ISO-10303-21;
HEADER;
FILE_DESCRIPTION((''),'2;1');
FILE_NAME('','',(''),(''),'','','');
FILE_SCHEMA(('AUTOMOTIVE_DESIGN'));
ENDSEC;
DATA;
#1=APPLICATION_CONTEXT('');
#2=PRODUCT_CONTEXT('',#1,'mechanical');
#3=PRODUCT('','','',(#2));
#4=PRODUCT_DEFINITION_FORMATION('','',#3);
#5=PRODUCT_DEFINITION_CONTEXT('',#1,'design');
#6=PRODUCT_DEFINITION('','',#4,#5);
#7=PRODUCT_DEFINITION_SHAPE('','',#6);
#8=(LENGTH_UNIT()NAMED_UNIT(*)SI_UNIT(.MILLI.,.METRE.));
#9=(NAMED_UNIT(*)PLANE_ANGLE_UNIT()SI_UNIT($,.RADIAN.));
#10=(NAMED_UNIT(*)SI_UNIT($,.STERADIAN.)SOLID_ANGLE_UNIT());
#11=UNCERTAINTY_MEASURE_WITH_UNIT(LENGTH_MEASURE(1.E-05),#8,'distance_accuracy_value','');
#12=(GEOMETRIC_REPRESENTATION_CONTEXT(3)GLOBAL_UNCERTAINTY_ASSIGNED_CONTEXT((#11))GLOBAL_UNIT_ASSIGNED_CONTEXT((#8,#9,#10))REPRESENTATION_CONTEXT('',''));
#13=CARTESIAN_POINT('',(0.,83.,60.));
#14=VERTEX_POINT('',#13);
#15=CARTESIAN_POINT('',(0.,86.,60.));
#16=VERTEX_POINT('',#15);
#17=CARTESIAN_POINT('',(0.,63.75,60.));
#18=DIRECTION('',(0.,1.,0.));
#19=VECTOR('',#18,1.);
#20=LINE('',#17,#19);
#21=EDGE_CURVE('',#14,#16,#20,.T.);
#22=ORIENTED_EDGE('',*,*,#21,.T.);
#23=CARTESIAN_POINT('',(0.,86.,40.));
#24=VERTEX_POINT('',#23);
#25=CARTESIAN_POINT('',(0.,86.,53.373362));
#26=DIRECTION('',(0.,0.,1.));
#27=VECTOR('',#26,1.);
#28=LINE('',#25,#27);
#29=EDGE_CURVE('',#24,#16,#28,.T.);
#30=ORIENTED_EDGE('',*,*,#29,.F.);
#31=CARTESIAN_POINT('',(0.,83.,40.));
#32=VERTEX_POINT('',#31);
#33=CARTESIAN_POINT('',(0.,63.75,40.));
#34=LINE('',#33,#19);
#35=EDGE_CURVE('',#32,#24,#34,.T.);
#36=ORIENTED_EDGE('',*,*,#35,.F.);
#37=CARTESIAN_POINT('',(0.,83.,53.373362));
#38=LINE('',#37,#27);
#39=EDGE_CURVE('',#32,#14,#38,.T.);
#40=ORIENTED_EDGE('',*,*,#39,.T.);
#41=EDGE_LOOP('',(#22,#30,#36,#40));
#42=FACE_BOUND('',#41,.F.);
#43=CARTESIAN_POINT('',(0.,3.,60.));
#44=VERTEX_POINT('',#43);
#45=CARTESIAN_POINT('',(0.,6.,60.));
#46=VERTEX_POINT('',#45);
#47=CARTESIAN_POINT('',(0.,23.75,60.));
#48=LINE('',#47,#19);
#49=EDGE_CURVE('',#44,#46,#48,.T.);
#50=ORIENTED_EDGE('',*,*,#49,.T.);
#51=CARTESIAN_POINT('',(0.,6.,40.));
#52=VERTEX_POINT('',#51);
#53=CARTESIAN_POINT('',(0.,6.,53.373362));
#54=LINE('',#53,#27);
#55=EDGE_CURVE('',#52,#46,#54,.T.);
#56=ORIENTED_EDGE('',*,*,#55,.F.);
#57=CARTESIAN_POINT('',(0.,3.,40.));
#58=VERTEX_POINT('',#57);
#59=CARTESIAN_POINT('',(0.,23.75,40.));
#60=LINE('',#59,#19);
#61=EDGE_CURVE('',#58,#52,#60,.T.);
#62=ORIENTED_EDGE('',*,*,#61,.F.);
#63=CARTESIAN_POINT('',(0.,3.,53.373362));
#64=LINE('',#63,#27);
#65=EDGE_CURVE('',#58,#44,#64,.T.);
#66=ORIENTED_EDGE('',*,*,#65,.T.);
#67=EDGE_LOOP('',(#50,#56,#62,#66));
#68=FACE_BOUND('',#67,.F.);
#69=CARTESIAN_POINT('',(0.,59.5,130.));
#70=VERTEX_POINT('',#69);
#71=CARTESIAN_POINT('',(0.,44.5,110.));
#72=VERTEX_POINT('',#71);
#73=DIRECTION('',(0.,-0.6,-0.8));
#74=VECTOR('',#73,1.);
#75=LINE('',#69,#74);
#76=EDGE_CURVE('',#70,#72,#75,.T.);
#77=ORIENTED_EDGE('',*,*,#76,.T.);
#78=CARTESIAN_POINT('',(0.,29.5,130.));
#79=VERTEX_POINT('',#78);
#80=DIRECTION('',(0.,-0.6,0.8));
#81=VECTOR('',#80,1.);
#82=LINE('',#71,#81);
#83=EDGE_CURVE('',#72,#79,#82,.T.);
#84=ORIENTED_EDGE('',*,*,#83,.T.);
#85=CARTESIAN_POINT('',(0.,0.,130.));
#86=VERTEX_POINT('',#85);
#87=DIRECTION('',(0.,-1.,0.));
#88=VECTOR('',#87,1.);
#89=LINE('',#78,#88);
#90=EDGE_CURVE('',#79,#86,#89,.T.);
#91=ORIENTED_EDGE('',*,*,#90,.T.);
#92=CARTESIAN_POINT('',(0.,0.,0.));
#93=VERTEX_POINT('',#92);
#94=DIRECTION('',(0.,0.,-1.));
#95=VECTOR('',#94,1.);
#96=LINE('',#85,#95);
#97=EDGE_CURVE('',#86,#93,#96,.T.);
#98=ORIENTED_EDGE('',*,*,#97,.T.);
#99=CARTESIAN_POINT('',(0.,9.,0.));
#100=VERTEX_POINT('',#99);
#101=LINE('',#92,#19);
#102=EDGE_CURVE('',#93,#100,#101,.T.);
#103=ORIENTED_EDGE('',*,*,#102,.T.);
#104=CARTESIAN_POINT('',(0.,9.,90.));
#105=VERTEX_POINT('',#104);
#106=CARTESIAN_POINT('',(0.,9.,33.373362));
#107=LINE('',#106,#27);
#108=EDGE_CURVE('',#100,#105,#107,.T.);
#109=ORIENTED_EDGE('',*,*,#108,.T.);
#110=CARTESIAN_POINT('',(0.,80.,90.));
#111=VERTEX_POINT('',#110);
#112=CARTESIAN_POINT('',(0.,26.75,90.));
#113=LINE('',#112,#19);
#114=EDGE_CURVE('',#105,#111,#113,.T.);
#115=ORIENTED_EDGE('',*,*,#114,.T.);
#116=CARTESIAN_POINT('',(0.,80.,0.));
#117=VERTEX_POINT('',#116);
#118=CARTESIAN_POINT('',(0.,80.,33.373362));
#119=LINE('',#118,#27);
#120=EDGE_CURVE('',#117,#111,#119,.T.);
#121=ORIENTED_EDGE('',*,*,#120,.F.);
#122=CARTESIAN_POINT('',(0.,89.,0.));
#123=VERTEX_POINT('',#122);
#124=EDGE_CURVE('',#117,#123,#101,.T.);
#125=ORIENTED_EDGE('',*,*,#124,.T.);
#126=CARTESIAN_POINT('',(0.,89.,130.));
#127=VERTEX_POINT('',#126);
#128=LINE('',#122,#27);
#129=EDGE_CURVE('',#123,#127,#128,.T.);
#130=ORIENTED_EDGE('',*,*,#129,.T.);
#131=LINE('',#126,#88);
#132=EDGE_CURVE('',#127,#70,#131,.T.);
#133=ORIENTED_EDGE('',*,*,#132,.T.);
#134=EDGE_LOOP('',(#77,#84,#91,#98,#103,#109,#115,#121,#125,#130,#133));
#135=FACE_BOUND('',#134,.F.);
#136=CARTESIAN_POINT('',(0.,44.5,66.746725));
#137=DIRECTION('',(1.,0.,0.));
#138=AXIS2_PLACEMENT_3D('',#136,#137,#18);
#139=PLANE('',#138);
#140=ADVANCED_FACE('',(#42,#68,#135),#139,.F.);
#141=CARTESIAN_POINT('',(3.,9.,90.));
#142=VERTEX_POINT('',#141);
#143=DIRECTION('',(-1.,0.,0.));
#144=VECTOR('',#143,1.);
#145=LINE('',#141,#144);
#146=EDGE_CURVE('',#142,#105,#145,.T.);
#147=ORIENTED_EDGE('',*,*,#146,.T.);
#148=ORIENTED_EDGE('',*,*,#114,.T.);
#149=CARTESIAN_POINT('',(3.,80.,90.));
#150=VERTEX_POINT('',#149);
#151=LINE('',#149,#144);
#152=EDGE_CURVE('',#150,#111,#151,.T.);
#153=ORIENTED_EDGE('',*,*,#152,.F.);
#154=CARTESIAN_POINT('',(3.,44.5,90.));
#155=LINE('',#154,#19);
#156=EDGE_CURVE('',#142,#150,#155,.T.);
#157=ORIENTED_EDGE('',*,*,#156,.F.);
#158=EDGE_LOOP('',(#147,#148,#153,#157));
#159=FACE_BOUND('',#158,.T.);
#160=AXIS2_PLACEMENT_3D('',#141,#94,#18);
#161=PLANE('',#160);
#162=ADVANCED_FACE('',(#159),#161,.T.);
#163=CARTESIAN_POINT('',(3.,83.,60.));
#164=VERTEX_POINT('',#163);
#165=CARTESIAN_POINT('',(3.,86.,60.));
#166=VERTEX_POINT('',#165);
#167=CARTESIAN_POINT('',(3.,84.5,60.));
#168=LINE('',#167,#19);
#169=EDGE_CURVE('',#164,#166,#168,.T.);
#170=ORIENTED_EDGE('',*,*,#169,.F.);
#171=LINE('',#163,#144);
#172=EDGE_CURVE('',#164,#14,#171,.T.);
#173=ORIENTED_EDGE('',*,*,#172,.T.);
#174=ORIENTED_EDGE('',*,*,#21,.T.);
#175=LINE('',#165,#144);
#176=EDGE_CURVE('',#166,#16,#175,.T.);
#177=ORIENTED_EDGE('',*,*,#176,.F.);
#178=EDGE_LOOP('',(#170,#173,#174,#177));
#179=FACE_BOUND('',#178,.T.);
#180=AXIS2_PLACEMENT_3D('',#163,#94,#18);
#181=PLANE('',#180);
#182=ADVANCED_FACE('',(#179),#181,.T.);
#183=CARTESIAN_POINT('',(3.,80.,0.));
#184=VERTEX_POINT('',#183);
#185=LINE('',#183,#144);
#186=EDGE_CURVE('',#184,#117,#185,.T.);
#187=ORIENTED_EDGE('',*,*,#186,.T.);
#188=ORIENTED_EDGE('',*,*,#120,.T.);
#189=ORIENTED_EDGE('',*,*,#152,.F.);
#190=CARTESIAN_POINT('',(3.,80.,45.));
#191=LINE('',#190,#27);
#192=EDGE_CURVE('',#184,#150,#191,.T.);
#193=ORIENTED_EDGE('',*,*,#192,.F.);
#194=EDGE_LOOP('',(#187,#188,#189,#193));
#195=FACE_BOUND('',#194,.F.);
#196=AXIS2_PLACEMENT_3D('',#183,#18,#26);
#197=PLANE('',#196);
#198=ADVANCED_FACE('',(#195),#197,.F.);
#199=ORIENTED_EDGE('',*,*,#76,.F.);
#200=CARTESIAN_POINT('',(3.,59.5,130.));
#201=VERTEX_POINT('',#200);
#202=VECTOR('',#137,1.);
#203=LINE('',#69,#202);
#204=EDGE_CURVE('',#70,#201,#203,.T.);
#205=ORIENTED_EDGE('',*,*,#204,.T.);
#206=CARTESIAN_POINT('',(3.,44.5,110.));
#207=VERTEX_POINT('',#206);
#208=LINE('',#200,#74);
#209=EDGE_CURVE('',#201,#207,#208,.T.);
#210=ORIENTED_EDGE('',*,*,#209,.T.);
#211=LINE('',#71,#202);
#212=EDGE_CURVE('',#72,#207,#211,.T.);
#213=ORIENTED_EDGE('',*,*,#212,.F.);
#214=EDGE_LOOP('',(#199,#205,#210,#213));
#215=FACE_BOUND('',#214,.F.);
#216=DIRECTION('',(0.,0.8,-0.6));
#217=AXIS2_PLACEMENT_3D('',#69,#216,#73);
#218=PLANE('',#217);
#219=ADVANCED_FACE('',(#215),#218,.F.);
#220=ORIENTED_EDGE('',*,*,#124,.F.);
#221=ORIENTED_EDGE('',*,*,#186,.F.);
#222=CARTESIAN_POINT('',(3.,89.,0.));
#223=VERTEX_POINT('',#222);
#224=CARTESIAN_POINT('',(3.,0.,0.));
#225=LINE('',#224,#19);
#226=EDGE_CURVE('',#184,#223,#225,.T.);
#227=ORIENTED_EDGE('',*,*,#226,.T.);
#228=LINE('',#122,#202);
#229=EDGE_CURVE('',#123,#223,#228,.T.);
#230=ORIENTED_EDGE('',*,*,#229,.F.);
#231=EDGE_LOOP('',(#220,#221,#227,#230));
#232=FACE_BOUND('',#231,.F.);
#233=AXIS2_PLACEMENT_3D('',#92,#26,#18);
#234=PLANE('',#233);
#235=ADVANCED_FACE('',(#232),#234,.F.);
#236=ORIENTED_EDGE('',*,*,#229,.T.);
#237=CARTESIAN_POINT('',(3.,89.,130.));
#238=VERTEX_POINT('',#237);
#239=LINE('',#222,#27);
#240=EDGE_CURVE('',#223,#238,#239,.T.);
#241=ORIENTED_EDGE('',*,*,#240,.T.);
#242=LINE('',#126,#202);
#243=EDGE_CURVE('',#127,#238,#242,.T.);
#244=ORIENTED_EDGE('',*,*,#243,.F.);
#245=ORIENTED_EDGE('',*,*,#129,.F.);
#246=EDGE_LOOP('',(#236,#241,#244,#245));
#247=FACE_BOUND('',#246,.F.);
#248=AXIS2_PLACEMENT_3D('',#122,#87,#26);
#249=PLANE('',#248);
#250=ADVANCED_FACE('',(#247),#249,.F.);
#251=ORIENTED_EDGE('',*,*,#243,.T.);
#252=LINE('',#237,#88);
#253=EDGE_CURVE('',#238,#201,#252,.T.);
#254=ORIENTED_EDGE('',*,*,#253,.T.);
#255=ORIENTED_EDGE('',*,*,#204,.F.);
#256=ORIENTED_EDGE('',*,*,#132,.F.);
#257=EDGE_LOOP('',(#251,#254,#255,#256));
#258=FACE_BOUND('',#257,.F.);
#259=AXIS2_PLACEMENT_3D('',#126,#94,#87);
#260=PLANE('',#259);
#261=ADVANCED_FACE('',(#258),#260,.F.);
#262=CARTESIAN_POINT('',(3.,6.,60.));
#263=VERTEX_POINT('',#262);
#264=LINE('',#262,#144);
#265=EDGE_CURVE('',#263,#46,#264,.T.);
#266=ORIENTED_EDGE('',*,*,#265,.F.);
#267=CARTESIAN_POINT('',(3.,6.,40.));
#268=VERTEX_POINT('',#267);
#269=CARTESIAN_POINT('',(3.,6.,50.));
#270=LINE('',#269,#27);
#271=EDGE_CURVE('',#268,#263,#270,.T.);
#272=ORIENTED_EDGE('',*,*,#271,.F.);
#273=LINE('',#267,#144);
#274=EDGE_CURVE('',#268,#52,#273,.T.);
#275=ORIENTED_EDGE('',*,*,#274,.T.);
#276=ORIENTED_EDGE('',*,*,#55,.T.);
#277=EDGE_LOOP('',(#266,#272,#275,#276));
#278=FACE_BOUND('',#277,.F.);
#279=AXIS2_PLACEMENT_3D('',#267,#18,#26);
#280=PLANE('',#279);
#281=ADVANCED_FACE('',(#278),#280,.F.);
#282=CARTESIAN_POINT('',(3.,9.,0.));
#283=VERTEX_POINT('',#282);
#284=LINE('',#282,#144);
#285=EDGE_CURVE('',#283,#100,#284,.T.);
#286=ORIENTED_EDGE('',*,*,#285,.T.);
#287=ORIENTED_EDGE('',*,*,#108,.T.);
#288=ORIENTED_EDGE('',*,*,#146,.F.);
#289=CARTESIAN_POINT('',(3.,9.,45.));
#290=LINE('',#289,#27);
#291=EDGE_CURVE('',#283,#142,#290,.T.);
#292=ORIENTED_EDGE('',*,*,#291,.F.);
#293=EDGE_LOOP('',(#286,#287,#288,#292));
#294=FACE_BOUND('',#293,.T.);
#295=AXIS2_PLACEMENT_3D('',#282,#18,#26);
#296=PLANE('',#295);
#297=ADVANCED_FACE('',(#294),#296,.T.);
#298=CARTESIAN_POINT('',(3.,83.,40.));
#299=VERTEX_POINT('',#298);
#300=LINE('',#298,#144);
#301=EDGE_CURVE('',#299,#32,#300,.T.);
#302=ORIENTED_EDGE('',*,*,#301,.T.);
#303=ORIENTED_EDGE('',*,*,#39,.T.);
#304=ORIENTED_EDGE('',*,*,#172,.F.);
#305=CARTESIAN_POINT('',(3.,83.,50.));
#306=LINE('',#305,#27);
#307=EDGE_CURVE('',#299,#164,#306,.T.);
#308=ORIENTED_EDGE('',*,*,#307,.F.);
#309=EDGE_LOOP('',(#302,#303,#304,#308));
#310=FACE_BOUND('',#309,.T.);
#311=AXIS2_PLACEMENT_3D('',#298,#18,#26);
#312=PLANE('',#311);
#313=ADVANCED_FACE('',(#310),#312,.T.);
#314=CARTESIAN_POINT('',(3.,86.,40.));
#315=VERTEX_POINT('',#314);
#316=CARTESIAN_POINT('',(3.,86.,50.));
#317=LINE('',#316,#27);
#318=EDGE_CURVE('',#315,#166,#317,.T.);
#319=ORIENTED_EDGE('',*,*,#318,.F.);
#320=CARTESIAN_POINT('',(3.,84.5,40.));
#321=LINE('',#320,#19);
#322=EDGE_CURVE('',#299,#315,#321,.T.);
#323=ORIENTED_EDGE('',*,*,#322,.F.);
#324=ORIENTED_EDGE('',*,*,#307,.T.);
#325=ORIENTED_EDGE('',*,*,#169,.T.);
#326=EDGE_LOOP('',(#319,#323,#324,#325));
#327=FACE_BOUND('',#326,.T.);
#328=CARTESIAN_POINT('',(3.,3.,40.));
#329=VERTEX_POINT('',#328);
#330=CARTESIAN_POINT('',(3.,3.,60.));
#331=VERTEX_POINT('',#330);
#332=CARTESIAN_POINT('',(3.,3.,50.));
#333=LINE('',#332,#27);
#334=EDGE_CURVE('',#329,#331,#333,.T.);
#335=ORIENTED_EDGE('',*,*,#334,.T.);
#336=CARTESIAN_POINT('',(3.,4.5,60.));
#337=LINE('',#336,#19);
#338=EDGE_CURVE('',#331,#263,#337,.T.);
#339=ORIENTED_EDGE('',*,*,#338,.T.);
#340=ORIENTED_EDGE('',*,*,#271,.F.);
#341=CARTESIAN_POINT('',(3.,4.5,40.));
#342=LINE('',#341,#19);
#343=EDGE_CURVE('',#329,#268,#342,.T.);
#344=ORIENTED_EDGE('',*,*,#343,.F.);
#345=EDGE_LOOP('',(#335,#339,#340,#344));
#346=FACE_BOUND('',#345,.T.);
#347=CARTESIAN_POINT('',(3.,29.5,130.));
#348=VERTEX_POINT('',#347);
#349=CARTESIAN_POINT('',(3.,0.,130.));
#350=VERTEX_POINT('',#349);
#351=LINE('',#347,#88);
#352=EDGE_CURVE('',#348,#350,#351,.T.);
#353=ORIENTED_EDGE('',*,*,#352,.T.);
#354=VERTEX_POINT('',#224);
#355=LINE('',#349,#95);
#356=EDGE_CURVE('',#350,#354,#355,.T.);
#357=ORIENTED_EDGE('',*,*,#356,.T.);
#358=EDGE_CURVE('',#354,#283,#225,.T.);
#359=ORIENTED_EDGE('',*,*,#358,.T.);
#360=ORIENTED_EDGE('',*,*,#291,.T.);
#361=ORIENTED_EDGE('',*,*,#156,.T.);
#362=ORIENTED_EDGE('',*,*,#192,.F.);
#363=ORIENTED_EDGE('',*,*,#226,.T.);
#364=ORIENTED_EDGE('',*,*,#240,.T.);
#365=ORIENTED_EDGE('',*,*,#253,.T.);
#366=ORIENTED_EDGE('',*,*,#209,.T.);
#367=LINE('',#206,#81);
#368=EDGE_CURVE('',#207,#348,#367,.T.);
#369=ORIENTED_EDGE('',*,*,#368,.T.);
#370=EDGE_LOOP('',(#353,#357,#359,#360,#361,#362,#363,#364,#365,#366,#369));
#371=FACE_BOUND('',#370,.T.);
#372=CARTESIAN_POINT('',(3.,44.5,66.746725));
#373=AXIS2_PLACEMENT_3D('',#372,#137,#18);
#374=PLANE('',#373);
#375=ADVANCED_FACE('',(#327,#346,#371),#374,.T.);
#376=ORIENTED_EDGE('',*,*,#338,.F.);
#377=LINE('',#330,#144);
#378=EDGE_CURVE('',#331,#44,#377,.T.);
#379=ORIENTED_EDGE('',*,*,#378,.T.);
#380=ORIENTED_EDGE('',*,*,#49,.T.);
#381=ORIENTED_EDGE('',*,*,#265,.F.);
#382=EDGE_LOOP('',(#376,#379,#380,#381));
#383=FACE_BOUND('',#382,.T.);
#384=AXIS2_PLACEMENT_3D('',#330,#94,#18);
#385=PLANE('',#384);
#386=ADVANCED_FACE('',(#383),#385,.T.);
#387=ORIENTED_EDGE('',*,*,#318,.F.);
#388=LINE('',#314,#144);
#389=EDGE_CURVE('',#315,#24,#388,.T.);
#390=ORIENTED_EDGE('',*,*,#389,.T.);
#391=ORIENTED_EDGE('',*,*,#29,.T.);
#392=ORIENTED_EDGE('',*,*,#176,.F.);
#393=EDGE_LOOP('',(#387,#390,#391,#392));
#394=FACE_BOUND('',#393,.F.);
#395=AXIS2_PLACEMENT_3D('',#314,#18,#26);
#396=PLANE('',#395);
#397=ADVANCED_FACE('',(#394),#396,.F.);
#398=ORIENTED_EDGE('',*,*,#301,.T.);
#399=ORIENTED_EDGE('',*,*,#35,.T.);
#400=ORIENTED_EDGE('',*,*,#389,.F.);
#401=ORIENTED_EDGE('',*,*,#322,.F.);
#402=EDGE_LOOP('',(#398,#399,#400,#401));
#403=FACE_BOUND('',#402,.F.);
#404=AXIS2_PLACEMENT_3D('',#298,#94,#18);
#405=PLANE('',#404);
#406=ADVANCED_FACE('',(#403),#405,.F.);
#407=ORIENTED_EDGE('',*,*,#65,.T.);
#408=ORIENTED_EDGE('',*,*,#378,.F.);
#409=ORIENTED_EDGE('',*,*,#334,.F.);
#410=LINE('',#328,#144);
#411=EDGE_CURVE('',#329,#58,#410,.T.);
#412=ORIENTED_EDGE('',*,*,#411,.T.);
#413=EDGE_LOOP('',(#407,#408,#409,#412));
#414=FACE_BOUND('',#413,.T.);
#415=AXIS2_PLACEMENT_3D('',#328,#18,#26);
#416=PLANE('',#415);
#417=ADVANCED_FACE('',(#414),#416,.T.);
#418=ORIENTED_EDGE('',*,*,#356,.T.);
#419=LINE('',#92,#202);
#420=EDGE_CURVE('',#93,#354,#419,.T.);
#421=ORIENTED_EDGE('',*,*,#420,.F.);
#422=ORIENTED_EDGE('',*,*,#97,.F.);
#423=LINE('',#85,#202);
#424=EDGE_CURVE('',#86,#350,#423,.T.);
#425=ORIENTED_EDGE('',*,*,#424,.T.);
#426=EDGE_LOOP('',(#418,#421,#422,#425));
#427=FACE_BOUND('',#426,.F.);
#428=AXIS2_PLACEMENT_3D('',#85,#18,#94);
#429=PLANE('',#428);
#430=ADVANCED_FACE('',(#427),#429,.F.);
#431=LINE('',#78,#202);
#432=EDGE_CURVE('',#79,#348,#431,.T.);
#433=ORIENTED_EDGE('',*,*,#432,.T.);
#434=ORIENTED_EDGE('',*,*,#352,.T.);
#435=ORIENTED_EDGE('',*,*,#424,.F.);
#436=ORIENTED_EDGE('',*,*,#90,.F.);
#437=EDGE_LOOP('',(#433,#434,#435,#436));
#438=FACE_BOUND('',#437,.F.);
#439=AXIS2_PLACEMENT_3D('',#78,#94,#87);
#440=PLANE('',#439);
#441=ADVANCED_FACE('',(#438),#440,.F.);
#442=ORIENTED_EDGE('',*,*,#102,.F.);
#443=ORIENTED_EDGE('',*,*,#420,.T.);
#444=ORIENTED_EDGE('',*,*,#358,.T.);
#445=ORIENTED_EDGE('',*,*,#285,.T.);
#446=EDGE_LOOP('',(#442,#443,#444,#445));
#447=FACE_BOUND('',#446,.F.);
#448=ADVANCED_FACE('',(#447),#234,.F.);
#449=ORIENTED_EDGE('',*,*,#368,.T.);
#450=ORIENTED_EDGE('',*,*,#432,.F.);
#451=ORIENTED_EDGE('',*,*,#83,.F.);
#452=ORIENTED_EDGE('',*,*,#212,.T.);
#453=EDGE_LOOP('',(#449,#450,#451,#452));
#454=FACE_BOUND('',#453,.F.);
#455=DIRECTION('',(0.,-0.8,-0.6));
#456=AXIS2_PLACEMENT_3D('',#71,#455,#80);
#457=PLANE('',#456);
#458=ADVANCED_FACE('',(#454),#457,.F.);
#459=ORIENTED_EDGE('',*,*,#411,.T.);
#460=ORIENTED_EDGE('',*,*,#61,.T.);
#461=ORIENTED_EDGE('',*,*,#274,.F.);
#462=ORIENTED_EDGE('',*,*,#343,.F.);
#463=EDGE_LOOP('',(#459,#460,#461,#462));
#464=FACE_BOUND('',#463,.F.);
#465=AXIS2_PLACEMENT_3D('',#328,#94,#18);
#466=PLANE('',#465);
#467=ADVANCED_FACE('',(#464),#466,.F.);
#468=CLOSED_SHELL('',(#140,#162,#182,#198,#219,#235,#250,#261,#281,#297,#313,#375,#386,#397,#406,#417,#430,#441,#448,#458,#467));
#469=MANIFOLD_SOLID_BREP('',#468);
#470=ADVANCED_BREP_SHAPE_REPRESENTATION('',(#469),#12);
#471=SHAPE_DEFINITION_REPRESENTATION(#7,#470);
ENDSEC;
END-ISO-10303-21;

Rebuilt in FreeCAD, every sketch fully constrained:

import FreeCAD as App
import Part
import Sketcher
from FreeCAD import Vector

doc = App.newDocument("Part")
body = doc.addObject("PartDesign::Body", "Body")

sketch1 = doc.addObject("Sketcher::SketchObject", "Sketch")
body.addObject(sketch1)
sketch1.AttachmentSupport = (doc.YZ_Plane, [""])
sketch1.MapMode = "FlatFace"
sketch1.addGeometry([
    Part.LineSegment(Vector(29.5, 130, 0), Vector(0, 130, 0)),
    Part.LineSegment(Vector(0, 130, 0), Vector(0, 0, 0)),
    Part.LineSegment(Vector(0, 0, 0), Vector(89, 0, 0)),
    Part.LineSegment(Vector(89, 0, 0), Vector(89, 130, 0)),
    Part.LineSegment(Vector(89, 130, 0), Vector(59.5, 130, 0)),
    Part.LineSegment(Vector(59.5, 130, 0), Vector(44.5, 110, 0)),
    Part.LineSegment(Vector(44.5, 110, 0), Vector(29.5, 130, 0)),
], False)
sketch1.addConstraint([
    Sketcher.Constraint("Coincident", 0, 2, 1, 1),
    Sketcher.Constraint("Coincident", 1, 2, 2, 1),
    Sketcher.Constraint("Coincident", 2, 2, 3, 1),
    Sketcher.Constraint("Coincident", 3, 2, 4, 1),
    Sketcher.Constraint("Coincident", 4, 2, 5, 1),
    Sketcher.Constraint("Coincident", 5, 2, 6, 1),
    Sketcher.Constraint("Coincident", 6, 2, 0, 1),
    Sketcher.Constraint("Horizontal", 0),
    Sketcher.Constraint("Vertical", 1),
    Sketcher.Constraint("Horizontal", 2),
    Sketcher.Constraint("Vertical", 3),
    Sketcher.Constraint("Horizontal", 4),
    Sketcher.Constraint("Coincident", 1, 2, -1, 1),
    Sketcher.Constraint("Horizontal", 0, 2, 3, 2),
    Sketcher.Constraint("Equal", 0, 4),
    Sketcher.Constraint("Equal", 5, 6),
    Sketcher.Constraint("DistanceX", 2, 1, 2, 2, 89.0),
    Sketcher.Constraint("DistanceY", 1, 2, 1, 1, 130.0),
    Sketcher.Constraint("Distance", 5, 25.0),
    Sketcher.Constraint("DistanceX", 0, 2, 0, 1, 29.5),
])
pad1 = doc.addObject("PartDesign::Pad", "Pad")
body.addObject(pad1)
pad1.Profile = sketch1
pad1.Length = 3

sketch2 = doc.addObject("Sketcher::SketchObject", "Sketch001")
body.addObject(sketch2)
sketch2.AttachmentSupport = (doc.YZ_Plane, [""])
sketch2.MapMode = "FlatFace"
sketch2.AttachmentOffset = App.Placement(Vector(0, 0, 3), App.Rotation())
sketch2.addGeometry([
    Part.LineSegment(Vector(3, 60, 0), Vector(3, 40, 0)),
    Part.LineSegment(Vector(3, 40, 0), Vector(6, 40, 0)),
    Part.LineSegment(Vector(6, 40, 0), Vector(6, 60, 0)),
    Part.LineSegment(Vector(6, 60, 0), Vector(3, 60, 0)),
    Part.LineSegment(Vector(83, 60, 0), Vector(83, 40, 0)),
    Part.LineSegment(Vector(83, 40, 0), Vector(86, 40, 0)),
    Part.LineSegment(Vector(86, 40, 0), Vector(86, 60, 0)),
    Part.LineSegment(Vector(86, 60, 0), Vector(83, 60, 0)),
    Part.LineSegment(Vector(9, 90, 0), Vector(9, 0, 0)),
    Part.LineSegment(Vector(9, 0, 0), Vector(80, 0, 0)),
    Part.LineSegment(Vector(80, 0, 0), Vector(80, 90, 0)),
    Part.LineSegment(Vector(80, 90, 0), Vector(9, 90, 0)),
], False)
sketch2.addConstraint([
    Sketcher.Constraint("Coincident", 0, 2, 1, 1),
    Sketcher.Constraint("Coincident", 1, 2, 2, 1),
    Sketcher.Constraint("Coincident", 2, 2, 3, 1),
    Sketcher.Constraint("Coincident", 3, 2, 0, 1),
    Sketcher.Constraint("Coincident", 4, 2, 5, 1),
    Sketcher.Constraint("Coincident", 5, 2, 6, 1),
    Sketcher.Constraint("Coincident", 6, 2, 7, 1),
    Sketcher.Constraint("Coincident", 7, 2, 4, 1),
    Sketcher.Constraint("Coincident", 8, 2, 9, 1),
    Sketcher.Constraint("Coincident", 9, 2, 10, 1),
    Sketcher.Constraint("Coincident", 10, 2, 11, 1),
    Sketcher.Constraint("Coincident", 11, 2, 8, 1),
    Sketcher.Constraint("Vertical", 0),
    Sketcher.Constraint("Horizontal", 1),
    Sketcher.Constraint("Vertical", 2),
    Sketcher.Constraint("Horizontal", 3),
    Sketcher.Constraint("Vertical", 4),
    Sketcher.Constraint("Horizontal", 5),
    Sketcher.Constraint("Vertical", 6),
    Sketcher.Constraint("Horizontal", 7),
    Sketcher.Constraint("Vertical", 8),
    Sketcher.Constraint("Horizontal", 9),
    Sketcher.Constraint("Vertical", 10),
    Sketcher.Constraint("Horizontal", 11),
    Sketcher.Constraint("PointOnObject", 8, 2, -1),
    Sketcher.Constraint("Horizontal", 1, 2, 4, 2),
    Sketcher.Constraint("Horizontal", 3, 2, 6, 2),
    Sketcher.Constraint("Equal", 3, 5),
    Sketcher.Constraint("DistanceX", 1, 1, 1, 2, 3.0),
    Sketcher.Constraint("DistanceX", 9, 1, 9, 2, 71.0),
    Sketcher.Constraint("DistanceY", 0, 2, 0, 1, 20.0),
    Sketcher.Constraint("DistanceY", 8, 2, 8, 1, 90.0),
    Sketcher.Constraint("DistanceX", -1, 1, 0, 2, 3.0),
    Sketcher.Constraint("DistanceY", -1, 1, 0, 2, 40.0),
    Sketcher.Constraint("DistanceX", -1, 1, 4, 2, 83.0),
    Sketcher.Constraint("DistanceX", -1, 1, 8, 2, 9.0),
])
pocket1 = doc.addObject("PartDesign::Pocket", "Pocket")
body.addObject(pocket1)
pocket1.Profile = sketch2
pocket1.Length = 25

doc.recompute()
